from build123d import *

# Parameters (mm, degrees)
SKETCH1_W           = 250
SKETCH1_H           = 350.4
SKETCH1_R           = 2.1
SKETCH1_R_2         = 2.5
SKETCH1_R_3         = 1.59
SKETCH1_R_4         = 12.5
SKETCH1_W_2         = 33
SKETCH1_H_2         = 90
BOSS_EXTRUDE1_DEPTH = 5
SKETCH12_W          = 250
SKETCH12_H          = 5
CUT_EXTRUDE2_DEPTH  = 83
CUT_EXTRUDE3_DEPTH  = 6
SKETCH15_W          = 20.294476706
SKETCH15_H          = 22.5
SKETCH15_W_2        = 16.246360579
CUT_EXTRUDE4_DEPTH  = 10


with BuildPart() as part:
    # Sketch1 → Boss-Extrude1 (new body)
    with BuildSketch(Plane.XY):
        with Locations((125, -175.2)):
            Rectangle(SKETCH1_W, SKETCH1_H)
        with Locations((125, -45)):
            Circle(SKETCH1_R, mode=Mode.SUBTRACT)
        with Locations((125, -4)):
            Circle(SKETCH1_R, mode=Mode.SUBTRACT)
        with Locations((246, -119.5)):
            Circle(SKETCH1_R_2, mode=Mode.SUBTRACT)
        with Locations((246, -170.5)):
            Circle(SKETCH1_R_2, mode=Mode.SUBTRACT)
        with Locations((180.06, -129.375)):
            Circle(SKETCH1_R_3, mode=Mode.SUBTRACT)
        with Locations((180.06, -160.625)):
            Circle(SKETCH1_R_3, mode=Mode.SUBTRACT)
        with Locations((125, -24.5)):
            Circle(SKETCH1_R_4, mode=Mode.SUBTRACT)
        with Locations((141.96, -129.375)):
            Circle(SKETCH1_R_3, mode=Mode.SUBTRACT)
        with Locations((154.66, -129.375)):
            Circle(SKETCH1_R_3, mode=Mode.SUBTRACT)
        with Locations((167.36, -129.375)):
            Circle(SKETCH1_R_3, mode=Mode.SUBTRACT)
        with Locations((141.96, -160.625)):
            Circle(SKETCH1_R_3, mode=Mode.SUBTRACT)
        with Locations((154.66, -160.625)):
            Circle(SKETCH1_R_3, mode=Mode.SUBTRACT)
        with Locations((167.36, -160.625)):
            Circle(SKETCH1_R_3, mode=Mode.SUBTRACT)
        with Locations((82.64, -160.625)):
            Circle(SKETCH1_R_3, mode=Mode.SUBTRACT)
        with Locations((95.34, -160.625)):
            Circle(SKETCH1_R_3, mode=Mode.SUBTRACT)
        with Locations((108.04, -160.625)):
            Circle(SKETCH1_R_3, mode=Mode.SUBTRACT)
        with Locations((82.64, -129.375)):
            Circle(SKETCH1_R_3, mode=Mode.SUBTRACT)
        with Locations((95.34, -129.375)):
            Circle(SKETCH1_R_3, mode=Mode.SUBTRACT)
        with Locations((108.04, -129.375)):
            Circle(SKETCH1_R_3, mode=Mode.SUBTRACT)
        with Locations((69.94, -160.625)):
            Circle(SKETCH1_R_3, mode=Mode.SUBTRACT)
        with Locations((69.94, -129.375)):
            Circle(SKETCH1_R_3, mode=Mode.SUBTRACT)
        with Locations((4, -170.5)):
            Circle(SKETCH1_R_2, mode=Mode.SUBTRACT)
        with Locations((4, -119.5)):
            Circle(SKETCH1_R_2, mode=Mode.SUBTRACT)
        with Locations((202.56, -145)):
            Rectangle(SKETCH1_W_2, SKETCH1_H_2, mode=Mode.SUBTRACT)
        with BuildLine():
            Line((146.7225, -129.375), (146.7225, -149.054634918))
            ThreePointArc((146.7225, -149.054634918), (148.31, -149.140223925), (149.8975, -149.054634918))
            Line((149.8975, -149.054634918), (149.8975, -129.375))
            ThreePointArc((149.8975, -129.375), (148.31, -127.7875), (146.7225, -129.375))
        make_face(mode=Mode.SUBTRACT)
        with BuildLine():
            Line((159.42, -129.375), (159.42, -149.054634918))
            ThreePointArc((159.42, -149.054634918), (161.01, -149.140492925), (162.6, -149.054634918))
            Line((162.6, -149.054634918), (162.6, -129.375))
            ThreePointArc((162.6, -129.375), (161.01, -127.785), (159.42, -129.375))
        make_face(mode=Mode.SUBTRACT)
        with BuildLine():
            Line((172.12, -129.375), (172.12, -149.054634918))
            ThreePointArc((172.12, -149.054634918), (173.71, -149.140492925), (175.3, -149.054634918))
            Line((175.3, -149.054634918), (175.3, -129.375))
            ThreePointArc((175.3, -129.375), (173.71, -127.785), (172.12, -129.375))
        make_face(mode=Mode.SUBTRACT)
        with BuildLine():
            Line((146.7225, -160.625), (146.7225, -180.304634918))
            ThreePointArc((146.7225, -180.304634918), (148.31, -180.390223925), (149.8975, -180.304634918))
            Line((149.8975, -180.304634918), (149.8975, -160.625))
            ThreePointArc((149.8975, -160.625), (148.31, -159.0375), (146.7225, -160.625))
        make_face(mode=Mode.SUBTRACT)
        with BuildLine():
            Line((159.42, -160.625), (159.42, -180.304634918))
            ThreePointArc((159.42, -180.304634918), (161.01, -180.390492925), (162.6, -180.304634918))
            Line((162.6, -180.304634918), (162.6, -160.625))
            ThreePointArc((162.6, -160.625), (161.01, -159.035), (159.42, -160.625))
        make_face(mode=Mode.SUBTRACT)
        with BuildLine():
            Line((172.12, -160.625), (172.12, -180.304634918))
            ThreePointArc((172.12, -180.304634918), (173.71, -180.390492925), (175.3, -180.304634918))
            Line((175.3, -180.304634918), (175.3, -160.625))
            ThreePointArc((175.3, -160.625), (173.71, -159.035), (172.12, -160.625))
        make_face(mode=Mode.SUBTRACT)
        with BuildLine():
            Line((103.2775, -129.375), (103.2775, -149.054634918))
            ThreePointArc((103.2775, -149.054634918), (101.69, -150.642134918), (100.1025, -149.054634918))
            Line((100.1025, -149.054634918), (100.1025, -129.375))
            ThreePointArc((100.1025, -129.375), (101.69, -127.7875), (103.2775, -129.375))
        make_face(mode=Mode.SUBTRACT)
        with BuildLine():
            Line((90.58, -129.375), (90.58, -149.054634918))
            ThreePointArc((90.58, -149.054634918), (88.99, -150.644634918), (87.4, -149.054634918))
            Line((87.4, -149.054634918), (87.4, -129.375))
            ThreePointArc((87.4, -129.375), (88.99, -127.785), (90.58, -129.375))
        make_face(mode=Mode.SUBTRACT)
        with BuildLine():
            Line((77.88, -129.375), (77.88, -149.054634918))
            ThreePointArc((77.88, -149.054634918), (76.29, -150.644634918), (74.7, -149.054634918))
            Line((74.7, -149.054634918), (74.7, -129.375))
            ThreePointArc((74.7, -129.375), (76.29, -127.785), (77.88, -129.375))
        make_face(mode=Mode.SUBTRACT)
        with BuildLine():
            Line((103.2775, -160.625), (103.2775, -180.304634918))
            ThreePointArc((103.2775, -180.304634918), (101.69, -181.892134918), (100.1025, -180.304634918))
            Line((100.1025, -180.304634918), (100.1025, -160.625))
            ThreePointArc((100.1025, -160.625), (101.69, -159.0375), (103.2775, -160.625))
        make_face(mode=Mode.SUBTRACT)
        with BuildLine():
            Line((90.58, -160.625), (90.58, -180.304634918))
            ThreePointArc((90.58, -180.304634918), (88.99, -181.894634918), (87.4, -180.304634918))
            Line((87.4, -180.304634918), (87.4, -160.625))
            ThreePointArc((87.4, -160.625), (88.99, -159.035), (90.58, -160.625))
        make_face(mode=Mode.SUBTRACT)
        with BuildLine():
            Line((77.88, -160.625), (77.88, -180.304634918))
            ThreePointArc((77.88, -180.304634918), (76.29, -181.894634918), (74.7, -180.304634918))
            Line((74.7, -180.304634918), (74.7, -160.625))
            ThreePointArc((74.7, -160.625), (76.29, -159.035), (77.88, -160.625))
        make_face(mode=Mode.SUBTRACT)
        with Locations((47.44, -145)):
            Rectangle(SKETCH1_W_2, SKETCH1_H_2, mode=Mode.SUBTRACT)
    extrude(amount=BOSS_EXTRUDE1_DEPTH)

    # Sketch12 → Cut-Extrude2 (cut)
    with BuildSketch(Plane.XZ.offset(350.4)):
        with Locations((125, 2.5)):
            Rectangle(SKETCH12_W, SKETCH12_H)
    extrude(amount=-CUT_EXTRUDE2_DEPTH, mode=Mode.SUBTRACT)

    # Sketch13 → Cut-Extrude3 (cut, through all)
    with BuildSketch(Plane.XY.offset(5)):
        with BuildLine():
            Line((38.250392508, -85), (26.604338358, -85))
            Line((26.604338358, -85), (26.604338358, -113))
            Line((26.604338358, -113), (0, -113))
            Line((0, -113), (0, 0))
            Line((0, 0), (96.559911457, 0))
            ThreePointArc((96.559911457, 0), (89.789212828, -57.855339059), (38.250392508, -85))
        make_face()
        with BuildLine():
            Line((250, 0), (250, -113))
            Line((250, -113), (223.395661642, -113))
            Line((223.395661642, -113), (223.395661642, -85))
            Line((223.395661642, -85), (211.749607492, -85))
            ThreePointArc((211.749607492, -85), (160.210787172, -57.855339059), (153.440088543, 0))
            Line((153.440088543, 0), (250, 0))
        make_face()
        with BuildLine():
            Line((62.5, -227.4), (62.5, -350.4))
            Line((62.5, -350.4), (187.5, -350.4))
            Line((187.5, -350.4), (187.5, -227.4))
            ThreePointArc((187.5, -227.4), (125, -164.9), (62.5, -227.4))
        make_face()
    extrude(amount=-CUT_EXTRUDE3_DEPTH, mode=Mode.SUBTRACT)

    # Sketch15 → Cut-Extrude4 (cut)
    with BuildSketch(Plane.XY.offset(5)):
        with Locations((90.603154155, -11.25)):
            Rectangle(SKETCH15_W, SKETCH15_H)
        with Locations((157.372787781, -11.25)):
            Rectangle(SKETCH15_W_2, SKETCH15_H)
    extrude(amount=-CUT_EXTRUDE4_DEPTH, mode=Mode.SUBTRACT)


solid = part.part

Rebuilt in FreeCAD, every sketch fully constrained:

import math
import FreeCAD as App
import Part
import Sketcher
from FreeCAD import Vector

doc = App.newDocument("Part")
body = doc.addObject("PartDesign::Body", "Body")

# Sketch on XY plane
sketch1 = body.newObject("Sketcher::SketchObject", "Sketch")
sketch1.AttachmentSupport = (doc.getObject("XY_Plane"), [""])
sketch1.MapMode = "FlatFace"
sketch1.addGeometry(Part.LineSegment(Vector(0, 0, 0), Vector(0, -350.4, 0)), False)
sketch1.addGeometry(Part.LineSegment(Vector(0, -350.4, 0), Vector(250, -350.4, 0)), False)
sketch1.addGeometry(Part.LineSegment(Vector(250, -350.4, 0), Vector(250, 0, 0)), False)
sketch1.addGeometry(Part.LineSegment(Vector(250, 0, 0), Vector(0, 0, 0)), False)
sketch1.addGeometry(Part.Circle(Vector(4, -170.5, 0), Vector(0, 0, 1), 2.5), False)
sketch1.addGeometry(Part.LineSegment(Vector(63.94, -190, 0), Vector(30.94, -190, 0)), False)
sketch1.addGeometry(Part.LineSegment(Vector(30.94, -190, 0), Vector(30.94, -100, 0)), False)
sketch1.addGeometry(Part.LineSegment(Vector(30.94, -100, 0), Vector(63.94, -100, 0)), False)
sketch1.addGeometry(Part.LineSegment(Vector(63.94, -100, 0), Vector(63.94, -190, 0)), False)
sketch1.addGeometry(Part.ArcOfCircle(Part.Circle(Vector(76.29, -160.625, 0), Vector(0, 0, 1), 1.59), math.radians(0), math.radians(180)), False)
sketch1.addGeometry(Part.LineSegment(Vector(77.88, -160.625, 0), Vector(77.88, -180.304635, 0)), False)
sketch1.addGeometry(Part.ArcOfCircle(Part.Circle(Vector(76.29, -180.304635, 0), Vector(0, 0, 1), 1.59), math.radians(180), math.radians(360)), False)
sketch1.addGeometry(Part.LineSegment(Vector(74.7, -180.304635, 0), Vector(74.7, -160.625, 0)), False)
sketch1.addGeometry(Part.ArcOfCircle(Part.Circle(Vector(88.99, -160.625, 0), Vector(0, 0, 1), 1.59), math.radians(0), math.radians(180)), False)
sketch1.addGeometry(Part.LineSegment(Vector(90.58, -160.625, 0), Vector(90.58, -180.304635, 0)), False)
sketch1.addGeometry(Part.ArcOfCircle(Part.Circle(Vector(88.99, -180.304635, 0), Vector(0, 0, 1), 1.59), math.radians(180), math.radians(360)), False)
sketch1.addGeometry(Part.LineSegment(Vector(87.4, -180.304635, 0), Vector(87.4, -160.625, 0)), False)
sketch1.addGeometry(Part.ArcOfCircle(Part.Circle(Vector(101.69, -160.625, 0), Vector(0, 0, 1), 1.5875), math.radians(0), math.radians(180)), False)
sketch1.addGeometry(Part.LineSegment(Vector(103.2775, -160.625, 0), Vector(103.2775, -180.304635, 0)), False)
sketch1.addGeometry(Part.ArcOfCircle(Part.Circle(Vector(101.69, -180.304635, 0), Vector(0, 0, 1), 1.5875), math.radians(180), math.radians(360)), False)
sketch1.addGeometry(Part.LineSegment(Vector(100.1025, -180.304635, 0), Vector(100.1025, -160.625, 0)), False)
sketch1.addGeometry(Part.Circle(Vector(69.94, -160.625, 0), Vector(0, 0, 1), 1.59), False)
sketch1.addGeometry(Part.Circle(Vector(82.64, -160.625, 0), Vector(0, 0, 1), 1.59), False)
sketch1.addGeometry(Part.Circle(Vector(95.34, -160.625, 0), Vector(0, 0, 1), 1.59), False)
sketch1.addGeometry(Part.Circle(Vector(108.04, -160.625, 0), Vector(0, 0, 1), 1.59), False)
sketch1.addGeometry(Part.Circle(Vector(4, -119.5, 0), Vector(0, 0, 1), 2.5), False)
sketch1.addGeometry(Part.ArcOfCircle(Part.Circle(Vector(76.29, -129.375, 0), Vector(0, 0, 1), 1.59), math.radians(0), math.radians(180)), False)
sketch1.addGeometry(Part.LineSegment(Vector(77.88, -129.375, 0), Vector(77.88, -149.054635, 0)), False)
sketch1.addGeometry(Part.ArcOfCircle(Part.Circle(Vector(76.29, -149.054635, 0), Vector(0, 0, 1), 1.59), math.radians(180), math.radians(360)), False)
sketch1.addGeometry(Part.LineSegment(Vector(74.7, -149.054635, 0), Vector(74.7, -129.375, 0)), False)
sketch1.addGeometry(Part.ArcOfCircle(Part.Circle(Vector(88.99, -129.375, 0), Vector(0, 0, 1), 1.59), math.radians(0), math.radians(180)), False)
sketch1.addGeometry(Part.LineSegment(Vector(90.58, -129.375, 0), Vector(90.58, -149.054635, 0)), False)
sketch1.addGeometry(Part.ArcOfCircle(Part.Circle(Vector(88.99, -149.054635, 0), Vector(0, 0, 1), 1.59), math.radians(180), math.radians(360)), False)
sketch1.addGeometry(Part.LineSegment(Vector(87.4, -149.054635, 0), Vector(87.4, -129.375, 0)), False)
sketch1.addGeometry(Part.Circle(Vector(69.94, -129.375, 0), Vector(0, 0, 1), 1.59), False)
sketch1.addGeometry(Part.Circle(Vector(82.64, -129.375, 0), Vector(0, 0, 1), 1.59), False)
sketch1.addGeometry(Part.ArcOfCircle(Part.Circle(Vector(101.69, -129.375, 0), Vector(0, 0, 1), 1.5875), math.radians(0), math.radians(180)), False)
sketch1.addGeometry(Part.LineSegment(Vector(103.2775, -129.375, 0), Vector(103.2775, -149.054635, 0)), False)
sketch1.addGeometry(Part.ArcOfCircle(Part.Circle(Vector(101.69, -149.054635, 0), Vector(0, 0, 1), 1.5875), math.radians(180), math.radians(360)), False)
sketch1.addGeometry(Part.LineSegment(Vector(100.1025, -149.054635, 0), Vector(100.1025, -129.375, 0)), False)
sketch1.addGeometry(Part.Circle(Vector(95.34, -129.375, 0), Vector(0, 0, 1), 1.59), False)
sketch1.addGeometry(Part.Circle(Vector(108.04, -129.375, 0), Vector(0, 0, 1), 1.59), False)
sketch1.addGeometry(Part.LineSegment(Vector(146.7225, -180.304635, 0), Vector(146.7225, -160.625, 0)), False)
sketch1.addGeometry(Part.ArcOfCircle(Part.Circle(Vector(148.31, -160.625, 0), Vector(0, 0, 1), 1.5875), math.radians(0), math.radians(180)), False)
sketch1.addGeometry(Part.LineSegment(Vector(149.8975, -160.625, 0), Vector(149.8975, -180.304635, 0)), False)
sketch1.addGeometry(Part.ArcOfCircle(Part.Circle(Vector(148.31, -165.625, 0), Vector(0, 0, 1), 14.765224), math.radians(-96.172152), math.radians(-83.827848)), False)
sketch1.addGeometry(Part.LineSegment(Vector(159.42, -180.304635, 0), Vector(159.42, -160.625, 0)), False)
sketch1.addGeometry(Part.ArcOfCircle(Part.Circle(Vector(161.01, -160.625, 0), Vector(0, 0, 1), 1.59), math.radians(0), math.radians(180)), False)
sketch1.addGeometry(Part.LineSegment(Vector(162.6, -160.625, 0), Vector(162.6, -180.304635, 0)), False)
sketch1.addGeometry(Part.ArcOfCircle(Part.Circle(Vector(161.01, -165.625, 0), Vector(0, 0, 1), 14.765493), math.radians(-96.181797), math.radians(-83.818203)), False)
sketch1.addGeometry(Part.LineSegment(Vector(172.12, -180.304635, 0), Vector(172.12, -160.625, 0)), False)
sketch1.addGeometry(Part.ArcOfCircle(Part.Circle(Vector(173.71, -160.625, 0), Vector(0, 0, 1), 1.59), math.radians(0), math.radians(180)), False)
sketch1.addGeometry(Part.LineSegment(Vector(175.3, -160.625, 0), Vector(175.3, -180.304635, 0)), False)
sketch1.addGeometry(Part.ArcOfCircle(Part.Circle(Vector(173.71, -165.625, 0), Vector(0, 0, 1), 14.765493), math.radians(-96.181797), math.radians(-83.818203)), False)
sketch1.addGeometry(Part.Circle(Vector(141.96, -160.625, 0), Vector(0, 0, 1), 1.59), False)
sketch1.addGeometry(Part.Circle(Vector(154.66, -160.625, 0), Vector(0, 0, 1), 1.59), False)
sketch1.addGeometry(Part.Circle(Vector(167.36, -160.625, 0), Vector(0, 0, 1), 1.59), False)
sketch1.addGeometry(Part.Circle(Vector(180.06, -160.625, 0), Vector(0, 0, 1), 1.59), False)
sketch1.addGeometry(Part.Circle(Vector(246, -170.5, 0), Vector(0, 0, 1), 2.5), False)
sketch1.addGeometry(Part.LineSegment(Vector(219.06, -190, 0), Vector(186.06, -190, 0)), False)
sketch1.addGeometry(Part.LineSegment(Vector(186.06, -190, 0), Vector(186.06, -100, 0)), False)
sketch1.addGeometry(Part.LineSegment(Vector(186.06, -100, 0), Vector(219.06, -100, 0)), False)
sketch1.addGeometry(Part.LineSegment(Vector(219.06, -100, 0), Vector(219.06, -190, 0)), False)
sketch1.addGeometry(Part.LineSegment(Vector(146.7225, -149.054635, 0), Vector(146.7225, -129.375, 0)), False)
sketch1.addGeometry(Part.ArcOfCircle(Part.Circle(Vector(148.31, -129.375, 0), Vector(0, 0, 1), 1.5875), math.radians(0), math.radians(180)), False)
sketch1.addGeometry(Part.LineSegment(Vector(149.8975, -129.375, 0), Vector(149.8975, -149.054635, 0)), False)
sketch1.addGeometry(Part.ArcOfCircle(Part.Circle(Vector(148.31, -134.375, 0), Vector(0, 0, 1), 14.765224), math.radians(-96.172152), math.radians(-83.827848)), False)
sketch1.addGeometry(Part.Circle(Vector(141.96, -129.375, 0), Vector(0, 0, 1), 1.59), False)
sketch1.addGeometry(Part.Circle(Vector(154.66, -129.375, 0), Vector(0, 0, 1), 1.59), False)
sketch1.addGeometry(Part.LineSegment(Vector(159.42, -149.054635, 0), Vector(159.42, -129.375, 0)), False)
sketch1.addGeometry(Part.ArcOfCircle(Part.Circle(Vector(161.01, -129.375, 0), Vector(0, 0, 1), 1.59), math.radians(0), math.radians(180)), False)
sketch1.addGeometry(Part.LineSegment(Vector(162.6, -129.375, 0), Vector(162.6, -149.054635, 0)), False)
sketch1.addGeometry(Part.ArcOfCircle(Part.Circle(Vector(161.01, -134.375, 0), Vector(0, 0, 1), 14.765493), math.radians(-96.181797), math.radians(-83.818203)), False)
sketch1.addGeometry(Part.LineSegment(Vector(172.12, -149.054635, 0), Vector(172.12, -129.375, 0)), False)
sketch1.addGeometry(Part.ArcOfCircle(Part.Circle(Vector(173.71, -129.375, 0), Vector(0, 0, 1), 1.59), math.radians(0), math.radians(180)), False)
sketch1.addGeometry(Part.LineSegment(Vector(175.3, -129.375, 0), Vector(175.3, -149.054635, 0)), False)
sketch1.addGeometry(Part.ArcOfCircle(Part.Circle(Vector(173.71, -134.375, 0), Vector(0, 0, 1), 14.765493), math.radians(-96.181797), math.radians(-83.818203)), False)
sketch1.addGeometry(Part.Circle(Vector(167.36, -129.375, 0), Vector(0, 0, 1), 1.59), False)
sketch1.addGeometry(Part.Circle(Vector(180.06, -129.375, 0), Vector(0, 0, 1), 1.59), False)
sketch1.addGeometry(Part.Circle(Vector(246, -119.5, 0), Vector(0, 0, 1), 2.5), False)
sketch1.addGeometry(Part.Circle(Vector(125, -45, 0), Vector(0, 0, 1), 2.1), False)
sketch1.addGeometry(Part.Circle(Vector(125, -24.5, 0), Vector(0, 0, 1), 12.5), False)
sketch1.addGeometry(Part.Circle(Vector(125, -4, 0), Vector(0, 0, 1), 2.1), False)
sketch1.addConstraint(Sketcher.Constraint("Coincident", 0, 2, 1, 1))
sketch1.addConstraint(Sketcher.Constraint("Coincident", 1, 2, 2, 1))
sketch1.addConstraint(Sketcher.Constraint("Coincident", 2, 2, 3, 1))
sketch1.addConstraint(Sketcher.Constraint("Coincident", 3, 2, 0, 1))
sketch1.addConstraint(Sketcher.Constraint("Coincident", 5, 2, 6, 1))
sketch1.addConstraint(Sketcher.Constraint("Coincident", 6, 2, 7, 1))
sketch1.addConstraint(Sketcher.Constraint("Coincident", 7, 2, 8, 1))
sketch1.addConstraint(Sketcher.Constraint("Coincident", 8, 2, 5, 1))
sketch1.addConstraint(Sketcher.Constraint("Tangent", 9, 1, 10, 1))
sketch1.addConstraint(Sketcher.Constraint("Tangent", 10, 2, 11, 2))
sketch1.addConstraint(Sketcher.Constraint("Tangent", 11, 1, 12, 1))
sketch1.addConstraint(Sketcher.Constraint("Tangent", 12, 2, 9, 2))
sketch1.addConstraint(Sketcher.Constraint("Tangent", 13, 1, 14, 1))
sketch1.addConstraint(Sketcher.Constraint("Tangent", 14, 2, 15, 2))
sketch1.addConstraint(Sketcher.Constraint("Tangent", 15, 1, 16, 1))
sketch1.addConstraint(Sketcher.Constraint("Tangent", 16, 2, 13, 2))
sketch1.addConstraint(Sketcher.Constraint("Tangent", 17, 1, 18, 1))
sketch1.addConstraint(Sketcher.Constraint("Tangent", 18, 2, 19, 2))
sketch1.addConstraint(Sketcher.Constraint("Tangent", 19, 1, 20, 1))
sketch1.addConstraint(Sketcher.Constraint("Tangent", 20, 2, 17, 2))
sketch1.addConstraint(Sketcher.Constraint("Tangent", 26, 1, 27, 1))
sketch1.addConstraint(Sketcher.Constraint("Tangent", 27, 2, 28, 2))
sketch1.addConstraint(Sketcher.Constraint("Tangent", 28, 1, 29, 1))
sketch1.addConstraint(Sketcher.Constraint("Tangent", 29, 2, 26, 2))
sketch1.addConstraint(Sketcher.Constraint("Tangent", 30, 1, 31, 1))
sketch1.addConstraint(Sketcher.Constraint("Tangent", 31, 2, 32, 2))
sketch1.addConstraint(Sketcher.Constraint("Tangent", 32, 1, 33, 1))
sketch1.addConstraint(Sketcher.Constraint("Tangent", 33, 2, 30, 2))
sketch1.addConstraint(Sketcher.Constraint("Tangent", 36, 1, 37, 1))
sketch1.addConstraint(Sketcher.Constraint("Tangent", 37, 2, 38, 2))
sketch1.addConstraint(Sketcher.Constraint("Tangent", 38, 1, 39, 1))
sketch1.addConstraint(Sketcher.Constraint("Tangent", 39, 2, 36, 2))
sketch1.addConstraint(Sketcher.Constraint("Tangent", 42, 2, 43, 2))
sketch1.addConstraint(Sketcher.Constraint("Tangent", 43, 1, 44, 1))
sketch1.addConstraint(Sketcher.Constraint("Coincident", 44, 2, 45, 2))
sketch1.addConstraint(Sketcher.Constraint("Coincident", 45, 1, 42, 1))
sketch1.addConstraint(Sketcher.Constraint("Tangent", 46, 2, 47, 2))
sketch1.addConstraint(Sketcher.Constraint("Tangent", 47, 1, 48, 1))
sketch1.addConstraint(Sketcher.Constraint("Coincident", 48, 2, 49, 2))
sketch1.addConstraint(Sketcher.Constraint("Coincident", 49, 1, 46, 1))
sketch1.addConstraint(Sketcher.Constraint("Tangent", 50, 2, 51, 2))
sketch1.addConstraint(Sketcher.Constraint("Tangent", 51, 1, 52, 1))
sketch1.addConstraint(Sketcher.Constraint("Coincident", 52, 2, 53, 2))
sketch1.addConstraint(Sketcher.Constraint("Coincident", 53, 1, 50, 1))
sketch1.addConstraint(Sketcher.Constraint("Coincident", 59, 2, 60, 1))
sketch1.addConstraint(Sketcher.Constraint("Coincident", 60, 2, 61, 1))
sketch1.addConstraint(Sketcher.Constraint("Coincident", 61, 2, 62, 1))
sketch1.addConstraint(Sketcher.Constraint("Coincident", 62, 2, 59, 1))
sketch1.addConstraint(Sketcher.Constraint("Tangent", 63, 2, 64, 2))
sketch1.addConstraint(Sketcher.Constraint("Tangent", 64, 1, 65, 1))
sketch1.addConstraint(Sketcher.Constraint("Coincident", 65, 2, 66, 2))
sketch1.addConstraint(Sketcher.Constraint("Coincident", 66, 1, 63, 1))
sketch1.addConstraint(Sketcher.Constraint("Tangent", 69, 2, 70, 2))
sketch1.addConstraint(Sketcher.Constraint("Tangent", 70, 1, 71, 1))
sketch1.addConstraint(Sketcher.Constraint("Coincident", 71, 2, 72, 2))
sketch1.addConstraint(Sketcher.Constraint("Coincident", 72, 1, 69, 1))
sketch1.addConstraint(Sketcher.Constraint("Tangent", 73, 2, 74, 2))
sketch1.addConstraint(Sketcher.Constraint("Tangent", 74, 1, 75, 1))
sketch1.addConstraint(Sketcher.Constraint("Coincident", 75, 2, 76, 2))
sketch1.addConstraint(Sketcher.Constraint("Coincident", 76, 1, 73, 1))
sketch1.addConstraint(Sketcher.Constraint("Vertical", 0))
sketch1.addConstraint(Sketcher.Constraint("Horizontal", 1))
sketch1.addConstraint(Sketcher.Constraint("Vertical", 2))
sketch1.addConstraint(Sketcher.Constraint("Horizontal", 3))
sketch1.addConstraint(Sketcher.Constraint("Horizontal", 5))
sketch1.addConstraint(Sketcher.Constraint("Vertical", 6))
sketch1.addConstraint(Sketcher.Constraint("Horizontal", 7))
sketch1.addConstraint(Sketcher.Constraint("Vertical", 8))
sketch1.addConstraint(Sketcher.Constraint("Vertical", 10))
sketch1.addConstraint(Sketcher.Constraint("Vertical", 12))
sketch1.addConstraint(Sketcher.Constraint("Vertical", 14))
sketch1.addConstraint(Sketcher.Constraint("Vertical", 16))
sketch1.addConstraint(Sketcher.Constraint("Vertical", 18))
sketch1.addConstraint(Sketcher.Constraint("Vertical", 20))
sketch1.addConstraint(Sketcher.Constraint("Vertical", 27))
sketch1.addConstraint(Sketcher.Constraint("Vertical", 29))
sketch1.addConstraint(Sketcher.Constraint("Vertical", 31))
sketch1.addConstraint(Sketcher.Constraint("Vertical", 33))
sketch1.addConstraint(Sketcher.Constraint("Vertical", 37))
sketch1.addConstraint(Sketcher.Constraint("Vertical", 39))
sketch1.addConstraint(Sketcher.Constraint("Vertical", 42))
sketch1.addConstraint(Sketcher.Constraint("Vertical", 44))
sketch1.addConstraint(Sketcher.Constraint("Vertical", 46))
sketch1.addConstraint(Sketcher.Constraint("Vertical", 48))
sketch1.addConstraint(Sketcher.Constraint("Vertical", 50))
sketch1.addConstraint(Sketcher.Constraint("Vertical", 52))
sketch1.addConstraint(Sketcher.Constraint("Horizontal", 59))
sketch1.addConstraint(Sketcher.Constraint("Vertical", 60))
sketch1.addConstraint(Sketcher.Constraint("Horizontal", 61))
sketch1.addConstraint(Sketcher.Constraint("Vertical", 62))
sketch1.addConstraint(Sketcher.Constraint("Vertical", 63))
sketch1.addConstraint(Sketcher.Constraint("Vertical", 65))
sketch1.addConstraint(Sketcher.Constraint("Vertical", 69))
sketch1.addConstraint(Sketcher.Constraint("Vertical", 71))
sketch1.addConstraint(Sketcher.Constraint("Vertical", 73))
sketch1.addConstraint(Sketcher.Constraint("Vertical", 75))
sketch1.addConstraint(Sketcher.Constraint("Coincident", 3, 2, -1, 1))
sketch1.addConstraint(Sketcher.Constraint("Equal", 11, 13))
sketch1.addConstraint(Sketcher.Constraint("Equal", 15, 21))
sketch1.addConstraint(Sketcher.Constraint("Equal", 21, 22))
sketch1.addConstraint(Sketcher.Constraint("Equal", 22, 23))
sketch1.addConstraint(Sketcher.Constraint("Equal", 23, 24))
sketch1.addConstraint(Sketcher.Constraint("Equal", 4, 25))
sketch1.addConstraint(Sketcher.Constraint("Equal", 24, 26))
sketch1.addConstraint(Sketcher.Constraint("Equal", 28, 30))
sketch1.addConstraint(Sketcher.Constraint("Equal", 32, 34))
sketch1.addConstraint(Sketcher.Constraint("Equal", 34, 35))
sketch1.addConstraint(Sketcher.Constraint("Equal", 19, 36))
sketch1.addConstraint(Sketcher.Constraint("Equal", 35, 40))
sketch1.addConstraint(Sketcher.Constraint("Equal", 40, 41))
sketch1.addConstraint(Sketcher.Constraint("Equal", 38, 43))
sketch1.addConstraint(Sketcher.Constraint("Equal", 41, 47))
sketch1.addConstraint(Sketcher.Constraint("Equal", 47, 51))
sketch1.addConstraint(Sketcher.Constraint("Equal", 49, 53))
sketch1.addConstraint(Sketcher.Constraint("Equal", 51, 54))
sketch1.addConstraint(Sketcher.Constraint("Equal", 54, 55))
sketch1.addConstraint(Sketcher.Constraint("Equal", 55, 56))
sketch1.addConstraint(Sketcher.Constraint("Equal", 56, 57))
sketch1.addConstraint(Sketcher.Constraint("Equal", 25, 58))
sketch1.addConstraint(Sketcher.Constraint("Equal", 43, 64))
sketch1.addConstraint(Sketcher.Constraint("Equal", 45, 66))
sketch1.addConstraint(Sketcher.Constraint("Equal", 57, 67))
sketch1.addConstraint(Sketcher.Constraint("Equal", 67, 68))
sketch1.addConstraint(Sketcher.Constraint("Equal", 68, 70))
sketch1.addConstraint(Sketcher.Constraint("Equal", 53, 72))
sketch1.addConstraint(Sketcher.Constraint("Equal", 70, 74))
sketch1.addConstraint(Sketcher.Constraint("Equal", 72, 76))
sketch1.addConstraint(Sketcher.Constraint("Equal", 74, 77))
sketch1.addConstraint(Sketcher.Constraint("Equal", 77, 78))
sketch1.addConstraint(Sketcher.Constraint("Equal", 58, 79))
sketch1.addConstraint(Sketcher.Constraint("Equal", 80, 82))
sketch1.addConstraint(Sketcher.Constraint("Horizontal", 9, 3, 13, 3))
sketch1.addConstraint(Sketcher.Constraint("Horizontal", 11, 3, 15, 3))
sketch1.addConstraint(Sketcher.Constraint("Horizontal", 13, 3, 17, 3))
sketch1.addConstraint(Sketcher.Constraint("Horizontal", 15, 3, 19, 3))
sketch1.addConstraint(Sketcher.Constraint("Horizontal", 17, 3, 21, 3))
sketch1.addConstraint(Sketcher.Constraint("Horizontal", 21, 3, 22, 3))
sketch1.addConstraint(Sketcher.Constraint("Horizontal", 22, 3, 23, 3))
sketch1.addConstraint(Sketcher.Constraint("Horizontal", 23, 3, 24, 3))
sketch1.addConstraint(Sketcher.Constraint("Horizontal", 26, 3, 30, 3))
sketch1.addConstraint(Sketcher.Constraint("Horizontal", 28, 3, 32, 3))
sketch1.addConstraint(Sketcher.Constraint("Horizontal", 30, 3, 34, 3))
sketch1.addConstraint(Sketcher.Constraint("Horizontal", 34, 3, 35, 3))
sketch1.addConstraint(Sketcher.Constraint("Horizontal", 35, 3, 36, 3))
sketch1.addConstraint(Sketcher.Constraint("Horizontal", 32, 3, 38, 3))
sketch1.addConstraint(Sketcher.Constraint("Horizontal", 36, 3, 40, 3))
sketch1.addConstraint(Sketcher.Constraint("Horizontal", 40, 3, 41, 3))
sketch1.addConstraint(Sketcher.Constraint("Horizontal", 24, 3, 43, 3))
sketch1.addConstraint(Sketcher.Constraint("Horizontal", 43, 3, 47, 3))
sketch1.addConstraint(Sketcher.Constraint("Horizontal", 45, 3, 49, 3))
sketch1.addConstraint(Sketcher.Constraint("Horizontal", 47, 3, 51, 3))
sketch1.addConstraint(Sketcher.Constraint("Horizontal", 49, 3, 53, 3))
sketch1.addConstraint(Sketcher.Constraint("Horizontal", 51, 3, 54, 3))
sketch1.addConstraint(Sketcher.Constraint("Horizontal", 54, 3, 55, 3))
sketch1.addConstraint(Sketcher.Constraint("Horizontal", 55, 3, 56, 3))
sketch1.addConstraint(Sketcher.Constraint("Horizontal", 56, 3, 57, 3))
sketch1.addConstraint(Sketcher.Constraint("Horizontal", 4, 3, 58, 3))
sketch1.addConstraint(Sketcher.Constraint("Horizontal", 41, 3, 64, 3))
sketch1.addConstraint(Sketcher.Constraint("Horizontal", 64, 3, 67, 3))
sketch1.addConstraint(Sketcher.Constraint("Horizontal", 67, 3, 68, 3))
sketch1.addConstraint(Sketcher.Constraint("Horizontal", 68, 3, 70, 3))
sketch1.addConstraint(Sketcher.Constraint("Horizontal", 66, 3, 72, 3))
sketch1.addConstraint(Sketcher.Constraint("Horizontal", 70, 3, 74, 3))
sketch1.addConstraint(Sketcher.Constraint("Horizontal", 72, 3, 76, 3))
sketch1.addConstraint(Sketcher.Constraint("Horizontal", 74, 3, 77, 3))
sketch1.addConstraint(Sketcher.Constraint("Horizontal", 77, 3, 78, 3))
sketch1.addConstraint(Sketcher.Constraint("Horizontal", 25, 3, 79, 3))
sketch1.addConstraint(Sketcher.Constraint("Horizontal", 19, 1, 44, 2))
sketch1.addConstraint(Sketcher.Constraint("Horizontal", 44, 2, 45, 1))
sketch1.addConstraint(Sketcher.Constraint("Horizontal", 45, 1, 48, 2))
sketch1.addConstraint(Sketcher.Constraint("Horizontal", 48, 2, 49, 1))
sketch1.addConstraint(Sketcher.Constraint("Horizontal", 49, 1, 52, 2))
sketch1.addConstraint(Sketcher.Constraint("Horizontal", 8, 2, 59, 2))
sketch1.addConstraint(Sketcher.Constraint("Horizontal", 7, 2, 60, 2))
sketch1.addConstraint(Sketcher.Constraint("Horizontal", 38, 1, 65, 2))
sketch1.addConstraint(Sketcher.Constraint("Horizontal", 65, 2, 66, 1))
sketch1.addConstraint(Sketcher.Constraint("Horizontal", 66, 1, 71, 2))
sketch1.addConstraint(Sketcher.Constraint("Horizontal", 72, 1, 75, 2))
sketch1.addConstraint(Sketcher.Constraint("Vertical", 4, 3, 25, 3))
sketch1.addConstraint(Sketcher.Constraint("Vertical", 11, 3, 26, 3))
sketch1.addConstraint(Sketcher.Constraint("Vertical", 15, 3, 30, 3))
sketch1.addConstraint(Sketcher.Constraint("Vertical", 21, 3, 34, 3))
sketch1.addConstraint(Sketcher.Constraint("Vertical", 22, 3, 35, 3))
sketch1.addConstraint(Sketcher.Constraint("Vertical", 19, 3, 36, 3))
sketch1.addConstraint(Sketcher.Constraint("Vertical", 23, 3, 40, 3))
sketch1.addConstraint(Sketcher.Constraint("Vertical", 24, 3, 41, 3))
sketch1.addConstraint(Sketcher.Constraint("Vertical", 45, 3, 64, 3))
sketch1.addConstraint(Sketcher.Constraint("Vertical", 54, 3, 67, 3))
sketch1.addConstraint(Sketcher.Constraint("Vertical", 55, 3, 68, 3))
sketch1.addConstraint(Sketcher.Constraint("Vertical", 49, 3, 70, 3))
sketch1.addConstraint(Sketcher.Constraint("Vertical", 53, 3, 74, 3))
sketch1.addConstraint(Sketcher.Constraint("Vertical", 56, 3, 77, 3))
sketch1.addConstraint(Sketcher.Constraint("Vertical", 57, 3, 78, 3))
sketch1.addConstraint(Sketcher.Constraint("Vertical", 58, 3, 79, 3))
sketch1.addConstraint(Sketcher.Constraint("Vertical", 80, 3, 81, 3))
sketch1.addConstraint(Sketcher.Constraint("Vertical", 81, 3, 82, 3))
sketch1.addConstraint(Sketcher.Constraint("Equal", 7, 59))
sketch1.addConstraint(Sketcher.Constraint("Equal", 20, 27))
sketch1.addConstraint(Sketcher.Constraint("Diameter", 4, 5.0))
sketch1.addConstraint(Sketcher.Constraint("Diameter", 81, 25.0))
sketch1.addConstraint(Sketcher.Constraint("Diameter", 80, 4.2))
sketch1.addConstraint(Sketcher.Constraint("Diameter", 21, 3.18))
sketch1.addConstraint(Sketcher.Constraint("DistanceX", 1, 1, 1, 2, 250.0))
sketch1.addConstraint(Sketcher.Constraint("DistanceX", 5, 2, 5, 1, 33.0))
sketch1.addConstraint(Sketcher.Constraint("DistanceY", 6, 1, 6, 2, 90.0))
sketch1.addConstraint(Sketcher.Constraint("DistanceY", 0, 2, 0, 1, 350.4))
sketch1.addConstraint(Sketcher.Constraint("DistanceX", -1, 1, 4, 3, 4.0))
sketch1.addConstraint(Sketcher.Constraint("DistanceX", -1, 1, 58, 3, 246.0))
sketch1.addConstraint(Sketcher.Constraint("DistanceX", -1, 1, 80, 3, 125.0))
sketch1.addConstraint(Sketcher.Constraint("DistanceY", 80, 3, -1, 1, 45.0))
sketch1.addConstraint(Sketcher.Constraint("DistanceY", 82, 3, -1, 1, 4.0))
sketch1.addConstraint(Sketcher.Constraint("DistanceY", 5, 2, -1, 1, 190.0))
sketch1.addConstraint(Sketcher.Constraint("DistanceY", 4, 3, -1, 1, 170.5))
sketch1.addConstraint(Sketcher.Constraint("DistanceY", 25, 3, -1, 1, 119.5))
sketch1.addConstraint(Sketcher.Constraint("DistanceY", 81, 3, -1, 1, 24.5))
sketch1.addConstraint(Sketcher.Constraint("DistanceX", -1, 1, 11, 1, 74.7))
sketch1.addConstraint(Sketcher.Constraint("DistanceX", -1, 1, 15, 1, 87.4))
sketch1.addConstraint(Sketcher.Constraint("DistanceX", -1, 1, 47, 1, 162.6))
sketch1.addConstraint(Sketcher.Constraint("DistanceX", -1, 1, 51, 1, 175.3))
sketch1.addConstraint(Sketcher.Constraint("Radius", 17, 1.5875))
sketch1.addConstraint(Sketcher.Constraint("DistanceX", -1, 1, 17, 3, 101.69))
sketch1.addConstraint(Sketcher.Constraint("DistanceX", -1, 1, 21, 3, 69.94))
sketch1.addConstraint(Sketcher.Constraint("DistanceX", -1, 1, 22, 3, 82.64))
sketch1.addConstraint(Sketcher.Constraint("DistanceX", -1, 1, 23, 3, 95.34))
sketch1.addConstraint(Sketcher.Constraint("DistanceX", -1, 1, 24, 3, 108.04))
sketch1.addConstraint(Sketcher.Constraint("DistanceX", -1, 1, 43, 3, 148.31))
sketch1.addConstraint(Sketcher.Constraint("DistanceX", -1, 1, 54, 3, 141.96))
sketch1.addConstraint(Sketcher.Constraint("DistanceX", -1, 1, 55, 3, 154.66))
sketch1.addConstraint(Sketcher.Constraint("DistanceX", -1, 1, 56, 3, 167.36))
sketch1.addConstraint(Sketcher.Constraint("DistanceX", -1, 1, 57, 3, 180.06))
sketch1.addConstraint(Sketcher.Constraint("DistanceX", -1, 1, 5, 2, 30.94))
sketch1.addConstraint(Sketcher.Constraint("DistanceX", -1, 1, 59, 2, 186.06))
sketch1.addConstraint(Sketcher.Constraint("DistanceY", 9, 3, -1, 1, 160.625))
sketch1.addConstraint(Sketcher.Constraint("DistanceY", 26, 3, -1, 1, 129.375))
sketch1.addConstraint(Sketcher.Constraint("DistanceY", 45, 3, -1, 1, 165.625))
sketch1.addConstraint(Sketcher.Constraint("Radius", 45, 14.765224))
pad1 = body.newObject("PartDesign::Pad", "Pad")
pad1.Profile = sketch1
pad1.Length = 5

# Sketch on XZ plane
sketch2 = body.newObject("Sketcher::SketchObject", "Sketch001")
sketch2.AttachmentSupport = (doc.getObject("XZ_Plane"), [""])
sketch2.MapMode = "FlatFace"
sketch2.AttachmentOffset = App.Placement(Vector(0, 0, 350.4), App.Rotation())
sketch2.addGeometry(Part.LineSegment(Vector(0, 5, 0), Vector(0, 0, 0)), False)
sketch2.addGeometry(Part.LineSegment(Vector(0, 0, 0), Vector(250, 0, 0)), False)
sketch2.addGeometry(Part.LineSegment(Vector(250, 0, 0), Vector(250, 5, 0)), False)
sketch2.addGeometry(Part.LineSegment(Vector(250, 5, 0), Vector(0, 5, 0)), False)
sketch2.addConstraint(Sketcher.Constraint("Coincident", 0, 2, 1, 1))
sketch2.addConstraint(Sketcher.Constraint("Coincident", 1, 2, 2, 1))
sketch2.addConstraint(Sketcher.Constraint("Coincident", 2, 2, 3, 1))
sketch2.addConstraint(Sketcher.Constraint("Coincident", 3, 2, 0, 1))
sketch2.addConstraint(Sketcher.Constraint("Vertical", 0))
sketch2.addConstraint(Sketcher.Constraint("Horizontal", 1))
sketch2.addConstraint(Sketcher.Constraint("Vertical", 2))
sketch2.addConstraint(Sketcher.Constraint("Horizontal", 3))
sketch2.addConstraint(Sketcher.Constraint("Coincident", 0, 2, -1, 1))
sketch2.addConstraint(Sketcher.Constraint("DistanceX", 1, 1, 1, 2, 250.0))
sketch2.addConstraint(Sketcher.Constraint("DistanceY", 0, 2, 0, 1, 5.0))
pocket1 = body.newObject("PartDesign::Pocket", "Pocket")
pocket1.Profile = sketch2
pocket1.Length = 83

# Sketch on XY plane
sketch3 = body.newObject("Sketcher::SketchObject", "Sketch002")
sketch3.AttachmentSupport = (doc.getObject("XY_Plane"), [""])
sketch3.MapMode = "FlatFace"
sketch3.AttachmentOffset = App.Placement(Vector(0, 0, 5), App.Rotation())
sketch3.addGeometry(Part.LineSegment(Vector(26.604338, -85, 0), Vector(38.250393, -85, 0)), False)
sketch3.addGeometry(Part.ArcOfCircle(Part.Circle(Vector(38.250393, -22.5, 0), Vector(0, 0, 1), 62.5), math.radians(-90), math.radians(21.100196)), False)
sketch3.addGeometry(Part.LineSegment(Vector(96.559911, 0, 0), Vector(0, 0, 0)), False)
sketch3.addGeometry(Part.LineSegment(Vector(0, 0, 0), Vector(0, -113, 0)), False)
sketch3.addGeometry(Part.LineSegment(Vector(0, -113, 0), Vector(26.604338, -113, 0)), False)
sketch3.addGeometry(Part.LineSegment(Vector(26.604338, -113, 0), Vector(26.604338, -85, 0)), False)
sketch3.addGeometry(Part.LineSegment(Vector(250, -113, 0), Vector(250, 0, 0)), False)
sketch3.addGeometry(Part.LineSegment(Vector(250, 0, 0), Vector(153.440089, 0, 0)), False)
sketch3.addGeometry(Part.ArcOfCircle(Part.Circle(Vector(211.749607, -22.5, 0), Vector(0, 0, 1), 62.5), math.radians(158.899804), math.radians(270)), False)
sketch3.addGeometry(Part.LineSegment(Vector(211.749607, -85, 0), Vector(223.395662, -85, 0)), False)
sketch3.addGeometry(Part.LineSegment(Vector(223.395662, -85, 0), Vector(223.395662, -113, 0)), False)
sketch3.addGeometry(Part.LineSegment(Vector(223.395662, -113, 0), Vector(250, -113, 0)), False)
sketch3.addGeometry(Part.LineSegment(Vector(62.5, -227.4, 0), Vector(62.5, -350.4, 0)), False)
sketch3.addGeometry(Part.LineSegment(Vector(62.5, -350.4, 0), Vector(187.5, -350.4, 0)), False)
sketch3.addGeometry(Part.LineSegment(Vector(187.5, -350.4, 0), Vector(187.5, -227.4, 0)), False)
sketch3.addGeometry(Part.ArcOfCircle(Part.Circle(Vector(125, -227.4, 0), Vector(0, 0, 1), 62.5), math.radians(0), math.radians(180)), False)
sketch3.addConstraint(Sketcher.Constraint("Tangent", 0, 2, 1, 1))
sketch3.addConstraint(Sketcher.Constraint("Coincident", 1, 2, 2, 1))
sketch3.addConstraint(Sketcher.Constraint("Coincident", 2, 2, 3, 1))
sketch3.addConstraint(Sketcher.Constraint("Coincident", 3, 2, 4, 1))
sketch3.addConstraint(Sketcher.Constraint("Coincident", 4, 2, 5, 1))
sketch3.addConstraint(Sketcher.Constraint("Coincident", 5, 2, 0, 1))
sketch3.addConstraint(Sketcher.Constraint("Coincident", 6, 2, 7, 1))
sketch3.addConstraint(Sketcher.Constraint("Coincident", 7, 2, 8, 1))
sketch3.addConstraint(Sketcher.Constraint("Tangent", 8, 2, 9, 1))
sketch3.addConstraint(Sketcher.Constraint("Coincident", 9, 2, 10, 1))
sketch3.addConstraint(Sketcher.Constraint("Coincident", 10, 2, 11, 1))
sketch3.addConstraint(Sketcher.Constraint("Coincident", 11, 2, 6, 1))
sketch3.addConstraint(Sketcher.Constraint("Coincident", 12, 2, 13, 1))
sketch3.addConstraint(Sketcher.Constraint("Coincident", 13, 2, 14, 1))
sketch3.addConstraint(Sketcher.Constraint("Tangent", 14, 2, 15, 1))
sketch3.addConstraint(Sketcher.Constraint("Tangent", 15, 2, 12, 1))
sketch3.addConstraint(Sketcher.Constraint("Horizontal", 0))
sketch3.addConstraint(Sketcher.Constraint("Horizontal", 2))
sketch3.addConstraint(Sketcher.Constraint("Vertical", 3))
sketch3.addConstraint(Sketcher.Constraint("Horizontal", 4))
sketch3.addConstraint(Sketcher.Constraint("Vertical", 5))
sketch3.addConstraint(Sketcher.Constraint("Vertical", 6))
sketch3.addConstraint(Sketcher.Constraint("Horizontal", 7))
sketch3.addConstraint(Sketcher.Constraint("Horizontal", 9))
sketch3.addConstraint(Sketcher.Constraint("Vertical", 10))
sketch3.addConstraint(Sketcher.Constraint("Horizontal", 11))
sketch3.addConstraint(Sketcher.Constraint("Vertical", 12))
sketch3.addConstraint(Sketcher.Constraint("Horizontal", 13))
sketch3.addConstraint(Sketcher.Constraint("Vertical", 14))
sketch3.addConstraint(Sketcher.Constraint("Coincident", 2, 2, -1, 1))
sketch3.addConstraint(Sketcher.Constraint("Equal", 1, 8))
sketch3.addConstraint(Sketcher.Constraint("Equal", 8, 15))
sketch3.addConstraint(Sketcher.Constraint("PointOnObject", 6, 2, -1))
sketch3.addConstraint(Sketcher.Constraint("Horizontal", 1, 3, 8, 3))
sketch3.addConstraint(Sketcher.Constraint("Horizontal", 4, 2, 10, 2))
sketch3.addConstraint(Sketcher.Constraint("Equal", 2, 7))
sketch3.addConstraint(Sketcher.Constraint("Equal", 0, 9))
sketch3.addConstraint(Sketcher.Constraint("Radius", 1, 62.5))
sketch3.addConstraint(Sketcher.Constraint("DistanceY", 3, 2, 3, 1, 113.0))
sketch3.addConstraint(Sketcher.Constraint("DistanceY", 5, 1, 5, 2, 28.0))
sketch3.addConstraint(Sketcher.Constraint("DistanceY", 12, 2, 12, 1, 123.0))
sketch3.addConstraint(Sketcher.Constraint("DistanceX", -1, 1, 15, 3, 125.0))
sketch3.addConstraint(Sketcher.Constraint("DistanceX", -1, 1, 6, 2, 250.0))
sketch3.addConstraint(Sketcher.Constraint("DistanceY", 15, 3, -1, 1, 227.4))
sketch3.addConstraint(Sketcher.Constraint("DistanceX", 2, 2, 2, 1, 96.559911))
sketch3.addConstraint(Sketcher.Constraint("DistanceX", 4, 1, 4, 2, 26.604338))
pocket2 = body.newObject("PartDesign::Pocket", "Pocket001")
pocket2.Profile = sketch3
pocket2.Type = "ThroughAll"

# Sketch on XY plane
sketch4 = body.newObject("Sketcher::SketchObject", "Sketch003")
sketch4.AttachmentSupport = (doc.getObject("XY_Plane"), [""])
sketch4.MapMode = "FlatFace"
sketch4.AttachmentOffset = App.Placement(Vector(0, 0, 5), App.Rotation())
sketch4.addGeometry(Part.LineSegment(Vector(80.455916, 0, 0), Vector(80.455916, -22.5, 0)), False)
sketch4.addGeometry(Part.LineSegment(Vector(80.455916, -22.5, 0), Vector(100.750393, -22.5, 0)), False)
sketch4.addGeometry(Part.LineSegment(Vector(100.750393, -22.5, 0), Vector(100.750393, 0, 0)), False)
sketch4.addGeometry(Part.LineSegment(Vector(100.750393, 0, 0), Vector(80.455916, 0, 0)), False)
sketch4.addGeometry(Part.LineSegment(Vector(149.249607, 0, 0), Vector(149.249607, -22.5, 0)), False)
sketch4.addGeometry(Part.LineSegment(Vector(149.249607, -22.5, 0), Vector(165.495968, -22.5, 0)), False)
sketch4.addGeometry(Part.LineSegment(Vector(165.495968, -22.5, 0), Vector(165.495968, 0, 0)), False)
sketch4.addGeometry(Part.LineSegment(Vector(165.495968, 0, 0), Vector(149.249607, 0, 0)), False)
sketch4.addConstraint(Sketcher.Constraint("Coincident", 0, 2, 1, 1))
sketch4.addConstraint(Sketcher.Constraint("Coincident", 1, 2, 2, 1))
sketch4.addConstraint(Sketcher.Constraint("Coincident", 2, 2, 3, 1))
sketch4.addConstraint(Sketcher.Constraint("Coincident", 3, 2, 0, 1))
sketch4.addConstraint(Sketcher.Constraint("Coincident", 4, 2, 5, 1))
sketch4.addConstraint(Sketcher.Constraint("Coincident", 5, 2, 6, 1))
sketch4.addConstraint(Sketcher.Constraint("Coincident", 6, 2, 7, 1))
sketch4.addConstraint(Sketcher.Constraint("Coincident", 7, 2, 4, 1))
sketch4.addConstraint(Sketcher.Constraint("Vertical", 0))
sketch4.addConstraint(Sketcher.Constraint("Horizontal", 1))
sketch4.addConstraint(Sketcher.Constraint("Vertical", 2))
sketch4.addConstraint(Sketcher.Constraint("Horizontal", 3))
sketch4.addConstraint(Sketcher.Constraint("Vertical", 4))
sketch4.addConstraint(Sketcher.Constraint("Horizontal", 5))
sketch4.addConstraint(Sketcher.Constraint("Vertical", 6))
sketch4.addConstraint(Sketcher.Constraint("Horizontal", 7))
sketch4.addConstraint(Sketcher.Constraint("PointOnObject", 2, 2, -1))
sketch4.addConstraint(Sketcher.Constraint("PointOnObject", 6, 2, -1))
sketch4.addConstraint(Sketcher.Constraint("Horizontal", 1, 2, 4, 2))
sketch4.addConstraint(Sketcher.Constraint("DistanceY", 0, 2, 0, 1, 22.5))
sketch4.addConstraint(Sketcher.Constraint("DistanceX", 5, 1, 5, 2, 16.246361))
sketch4.addConstraint(Sketcher.Constraint("DistanceX", 1, 1, 1, 2, 20.294477))
sketch4.addConstraint(Sketcher.Constraint("DistanceX", -1, 1, 5, 2, 165.495968))
sketch4.addConstraint(Sketcher.Constraint("DistanceX", 0, 2, 4, 2, 68.793692))
pocket3 = body.newObject("PartDesign::Pocket", "Pocket002")
pocket3.Profile = sketch4
pocket3.Length = 10

doc.recompute()
